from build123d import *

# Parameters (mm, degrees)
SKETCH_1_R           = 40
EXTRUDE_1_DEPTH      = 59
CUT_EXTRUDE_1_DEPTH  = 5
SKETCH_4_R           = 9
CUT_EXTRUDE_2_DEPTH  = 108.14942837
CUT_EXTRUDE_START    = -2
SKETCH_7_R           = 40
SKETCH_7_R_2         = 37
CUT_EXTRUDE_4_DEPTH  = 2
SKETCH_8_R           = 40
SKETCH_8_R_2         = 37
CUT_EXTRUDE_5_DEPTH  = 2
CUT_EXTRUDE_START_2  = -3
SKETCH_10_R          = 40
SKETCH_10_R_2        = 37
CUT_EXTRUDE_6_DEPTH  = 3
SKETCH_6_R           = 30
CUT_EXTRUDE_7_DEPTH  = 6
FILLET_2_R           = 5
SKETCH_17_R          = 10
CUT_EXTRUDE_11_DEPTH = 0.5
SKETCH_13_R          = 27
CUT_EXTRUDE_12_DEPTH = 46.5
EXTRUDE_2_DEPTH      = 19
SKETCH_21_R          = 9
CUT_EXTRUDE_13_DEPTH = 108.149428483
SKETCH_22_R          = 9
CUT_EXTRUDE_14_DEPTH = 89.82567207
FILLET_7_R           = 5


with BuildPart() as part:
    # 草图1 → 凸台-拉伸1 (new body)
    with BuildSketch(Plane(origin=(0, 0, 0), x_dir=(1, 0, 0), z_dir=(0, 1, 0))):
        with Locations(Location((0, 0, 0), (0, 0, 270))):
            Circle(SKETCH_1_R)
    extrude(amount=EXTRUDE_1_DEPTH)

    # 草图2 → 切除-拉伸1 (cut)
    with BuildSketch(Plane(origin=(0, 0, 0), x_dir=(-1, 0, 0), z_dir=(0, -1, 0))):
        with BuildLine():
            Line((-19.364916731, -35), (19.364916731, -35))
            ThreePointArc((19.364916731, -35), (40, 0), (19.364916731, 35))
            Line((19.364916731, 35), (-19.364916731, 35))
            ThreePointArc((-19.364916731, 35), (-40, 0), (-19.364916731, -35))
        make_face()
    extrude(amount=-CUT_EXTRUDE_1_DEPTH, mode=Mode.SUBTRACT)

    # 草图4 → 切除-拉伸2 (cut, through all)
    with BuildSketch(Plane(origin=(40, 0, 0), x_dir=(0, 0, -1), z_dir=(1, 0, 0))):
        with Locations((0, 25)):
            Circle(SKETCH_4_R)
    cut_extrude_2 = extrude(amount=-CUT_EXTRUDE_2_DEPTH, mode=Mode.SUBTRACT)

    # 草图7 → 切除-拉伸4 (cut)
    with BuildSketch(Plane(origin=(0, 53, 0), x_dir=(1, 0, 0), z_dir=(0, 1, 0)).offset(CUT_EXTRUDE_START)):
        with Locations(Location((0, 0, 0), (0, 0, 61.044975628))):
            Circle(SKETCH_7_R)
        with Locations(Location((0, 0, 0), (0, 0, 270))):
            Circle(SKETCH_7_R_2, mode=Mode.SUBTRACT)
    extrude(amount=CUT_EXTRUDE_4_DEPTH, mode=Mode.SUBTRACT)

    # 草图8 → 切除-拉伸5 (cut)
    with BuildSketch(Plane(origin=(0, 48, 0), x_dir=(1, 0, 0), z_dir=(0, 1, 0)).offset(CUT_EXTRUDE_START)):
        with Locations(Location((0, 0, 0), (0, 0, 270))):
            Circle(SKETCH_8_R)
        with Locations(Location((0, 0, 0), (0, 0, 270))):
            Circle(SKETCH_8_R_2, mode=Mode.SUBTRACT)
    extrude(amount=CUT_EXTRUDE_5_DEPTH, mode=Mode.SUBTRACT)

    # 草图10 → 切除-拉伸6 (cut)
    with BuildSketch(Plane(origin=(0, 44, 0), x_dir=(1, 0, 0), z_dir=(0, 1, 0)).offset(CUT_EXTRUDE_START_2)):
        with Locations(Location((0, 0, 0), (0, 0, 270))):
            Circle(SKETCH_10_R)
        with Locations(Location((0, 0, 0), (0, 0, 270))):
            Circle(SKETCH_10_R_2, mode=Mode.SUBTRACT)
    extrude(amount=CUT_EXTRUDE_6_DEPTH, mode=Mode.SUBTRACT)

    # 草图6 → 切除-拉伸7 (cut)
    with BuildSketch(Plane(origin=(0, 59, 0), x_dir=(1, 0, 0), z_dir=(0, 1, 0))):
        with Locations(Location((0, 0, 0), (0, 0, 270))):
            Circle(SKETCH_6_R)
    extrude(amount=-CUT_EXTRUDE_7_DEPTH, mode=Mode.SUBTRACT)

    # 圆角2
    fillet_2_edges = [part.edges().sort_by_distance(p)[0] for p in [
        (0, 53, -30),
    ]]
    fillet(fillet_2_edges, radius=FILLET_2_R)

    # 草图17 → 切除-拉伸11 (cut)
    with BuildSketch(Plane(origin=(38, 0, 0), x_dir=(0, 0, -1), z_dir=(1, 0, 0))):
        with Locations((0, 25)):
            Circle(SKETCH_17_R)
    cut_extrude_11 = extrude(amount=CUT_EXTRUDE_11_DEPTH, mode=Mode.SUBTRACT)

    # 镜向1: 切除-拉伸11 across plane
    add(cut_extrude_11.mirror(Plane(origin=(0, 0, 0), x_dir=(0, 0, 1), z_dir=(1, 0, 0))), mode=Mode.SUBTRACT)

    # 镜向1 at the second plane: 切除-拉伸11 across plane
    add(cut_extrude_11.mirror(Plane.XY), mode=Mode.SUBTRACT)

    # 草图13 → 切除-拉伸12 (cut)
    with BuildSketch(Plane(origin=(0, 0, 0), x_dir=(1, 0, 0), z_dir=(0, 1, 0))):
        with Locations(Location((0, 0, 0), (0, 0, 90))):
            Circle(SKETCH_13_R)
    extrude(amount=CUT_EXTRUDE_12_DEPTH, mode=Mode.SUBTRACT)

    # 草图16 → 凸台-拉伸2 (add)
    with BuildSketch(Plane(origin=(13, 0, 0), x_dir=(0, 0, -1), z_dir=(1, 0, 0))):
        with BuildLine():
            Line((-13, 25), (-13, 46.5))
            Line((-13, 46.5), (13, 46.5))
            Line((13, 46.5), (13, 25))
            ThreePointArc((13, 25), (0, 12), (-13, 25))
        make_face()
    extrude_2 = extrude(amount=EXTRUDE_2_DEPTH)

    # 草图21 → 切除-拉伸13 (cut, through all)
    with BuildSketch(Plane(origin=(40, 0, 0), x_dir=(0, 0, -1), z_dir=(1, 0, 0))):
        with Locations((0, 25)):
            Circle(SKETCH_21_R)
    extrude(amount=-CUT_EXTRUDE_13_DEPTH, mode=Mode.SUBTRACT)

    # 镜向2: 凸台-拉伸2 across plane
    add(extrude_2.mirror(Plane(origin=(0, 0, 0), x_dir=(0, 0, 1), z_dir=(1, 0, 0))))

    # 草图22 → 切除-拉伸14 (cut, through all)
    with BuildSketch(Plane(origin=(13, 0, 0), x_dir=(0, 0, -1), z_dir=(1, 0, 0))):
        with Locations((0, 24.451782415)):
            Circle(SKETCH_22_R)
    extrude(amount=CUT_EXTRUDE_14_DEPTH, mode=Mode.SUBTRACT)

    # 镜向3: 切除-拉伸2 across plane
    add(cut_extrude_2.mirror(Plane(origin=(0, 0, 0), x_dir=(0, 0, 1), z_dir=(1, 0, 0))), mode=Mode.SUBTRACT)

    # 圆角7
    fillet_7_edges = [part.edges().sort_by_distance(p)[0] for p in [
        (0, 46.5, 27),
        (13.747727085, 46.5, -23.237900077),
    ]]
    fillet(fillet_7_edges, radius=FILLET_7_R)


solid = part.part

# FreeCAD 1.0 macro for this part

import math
import FreeCAD as App
import Part
import Sketcher


def edges_at(feature, points):
    """Names of the edges that pass closest to the given points."""
    edges = feature.Shape.Edges
    near = lambda p: min(range(len(edges)), key=lambda i: edges[i].distToShape(Part.Vertex(*p))[0])
    return sorted({f"Edge{near(p) + 1}" for p in points})

doc = App.newDocument("Part")
body = doc.addObject("PartDesign::Body", "Body")

sketch1 = doc.addObject("Sketcher::SketchObject", "Sketch")
body.addObject(sketch1)
sketch1.AttachmentSupport = (doc.XZ_Plane, [""])
sketch1.MapMode = "FlatFace"
sketch1.addGeometry(Part.Circle(App.Vector(0, 0, 0), App.Vector(0, 0, 1), 40), False)
sketch1.addConstraint(Sketcher.Constraint("Coincident", 0, 3, -1, 1))
sketch1.addConstraint(Sketcher.Constraint("Diameter", 0, 80.0))
pad1 = doc.addObject("PartDesign::Pad", "Pad")
body.addObject(pad1)
pad1.Profile = sketch1
pad1.Length = 59
pad1.Reversed = True

sketch2 = doc.addObject("Sketcher::SketchObject", "Sketch001")
body.addObject(sketch2)
sketch2.AttachmentSupport = (doc.XZ_Plane, [""])
sketch2.MapMode = "FlatFace"
sketch2.addGeometry(Part.LineSegment(App.Vector(19, 35, 0), App.Vector(-19, 35, 0)), False)
sketch2.addGeometry(Part.ArcOfCircle(Part.Circle(App.Vector(0, 0, 0), App.Vector(0, 0, 1), 40), math.radians(119), math.radians(241)), False)
sketch2.addGeometry(Part.LineSegment(App.Vector(-19, -35, 0), App.Vector(19, -35, 0)), False)
sketch2.addGeometry(Part.ArcOfCircle(Part.Circle(App.Vector(0, 0, 0), App.Vector(0, 0, 1), 40), math.radians(-61), math.radians(61)), False)
sketch2.addConstraint(Sketcher.Constraint("Coincident", 0, 2, 1, 1))
sketch2.addConstraint(Sketcher.Constraint("Coincident", 1, 2, 2, 1))
sketch2.addConstraint(Sketcher.Constraint("Coincident", 2, 2, 3, 1))
sketch2.addConstraint(Sketcher.Constraint("Coincident", 3, 2, 0, 1))
sketch2.addConstraint(Sketcher.Constraint("Horizontal", 0))
sketch2.addConstraint(Sketcher.Constraint("Horizontal", 2))
sketch2.addConstraint(Sketcher.Constraint("Coincident", 1, 3, -1, 1))
sketch2.addConstraint(Sketcher.Constraint("Coincident", 3, 3, -1, 1))
sketch2.addConstraint(Sketcher.Constraint("Equal", 1, 3))
sketch2.addConstraint(Sketcher.Constraint("Vertical", 0, 2, 1, 2))
sketch2.addConstraint(Sketcher.Constraint("Radius", 1, 40.0))
sketch2.addConstraint(Sketcher.Constraint("DistanceY", -1, 1, 0, 2, 35.0))
pocket1 = doc.addObject("PartDesign::Pocket", "Pocket")
body.addObject(pocket1)
pocket1.Profile = sketch2
pocket1.Length = 5

sketch3 = doc.addObject("Sketcher::SketchObject", "Sketch002")
body.addObject(sketch3)
sketch3.AttachmentSupport = (doc.YZ_Plane, [""])
sketch3.MapMode = "FlatFace"
sketch3.AttachmentOffset = App.Placement(App.Vector(0, 0, 40), App.Rotation())
sketch3.addGeometry(Part.Circle(App.Vector(25, 0, 0), App.Vector(0, 0, 1), 9), False)
sketch3.addConstraint(Sketcher.Constraint("PointOnObject", 0, 3, -1))
sketch3.addConstraint(Sketcher.Constraint("Diameter", 0, 18.0))
sketch3.addConstraint(Sketcher.Constraint("DistanceX", -1, 1, 0, 3, 25.0))
pocket2 = doc.addObject("PartDesign::Pocket", "Pocket001")
body.addObject(pocket2)
pocket2.Profile = sketch3
pocket2.Type = "ThroughAll"

sketch4 = doc.addObject("Sketcher::SketchObject", "Sketch003")
body.addObject(sketch4)
sketch4.AttachmentSupport = (doc.XZ_Plane, [""])
sketch4.MapMode = "FlatFace"
sketch4.AttachmentOffset = App.Placement(App.Vector(0, 0, -51), App.Rotation())
sketch4.addGeometry(Part.Circle(App.Vector(0, 0, 0), App.Vector(0, 0, 1), 40), False)
sketch4.addGeometry(Part.Circle(App.Vector(0, 0, 0), App.Vector(0, 0, 1), 37), False)
sketch4.addConstraint(Sketcher.Constraint("Coincident", 0, 3, -1, 1))
sketch4.addConstraint(Sketcher.Constraint("Coincident", 1, 3, -1, 1))
sketch4.addConstraint(Sketcher.Constraint("Diameter", 0, 80.0))
sketch4.addConstraint(Sketcher.Constraint("Diameter", 1, 74.0))
pocket3 = doc.addObject("PartDesign::Pocket", "Pocket002")
body.addObject(pocket3)
pocket3.Profile = sketch4
pocket3.Length = 2

sketch5 = doc.addObject("Sketcher::SketchObject", "Sketch004")
body.addObject(sketch5)
sketch5.AttachmentSupport = (doc.XZ_Plane, [""])
sketch5.MapMode = "FlatFace"
sketch5.AttachmentOffset = App.Placement(App.Vector(0, 0, -46), App.Rotation())
sketch5.addGeometry(Part.Circle(App.Vector(0, 0, 0), App.Vector(0, 0, 1), 40), False)
sketch5.addGeometry(Part.Circle(App.Vector(0, 0, 0), App.Vector(0, 0, 1), 37), False)
sketch5.addConstraint(Sketcher.Constraint("Coincident", 0, 3, -1, 1))
sketch5.addConstraint(Sketcher.Constraint("Coincident", 1, 3, -1, 1))
sketch5.addConstraint(Sketcher.Constraint("Diameter", 0, 80.0))
sketch5.addConstraint(Sketcher.Constraint("Diameter", 1, 74.0))
pocket4 = doc.addObject("PartDesign::Pocket", "Pocket003")
body.addObject(pocket4)
pocket4.Profile = sketch5
pocket4.Length = 2

sketch6 = doc.addObject("Sketcher::SketchObject", "Sketch005")
body.addObject(sketch6)
sketch6.AttachmentSupport = (doc.XZ_Plane, [""])
sketch6.MapMode = "FlatFace"
sketch6.AttachmentOffset = App.Placement(App.Vector(0, 0, -41), App.Rotation())
sketch6.addGeometry(Part.Circle(App.Vector(0, 0, 0), App.Vector(0, 0, 1), 40), False)
sketch6.addGeometry(Part.Circle(App.Vector(0, 0, 0), App.Vector(0, 0, 1), 37), False)
sketch6.addConstraint(Sketcher.Constraint("Coincident", 0, 3, -1, 1))
sketch6.addConstraint(Sketcher.Constraint("Coincident", 1, 3, -1, 1))
sketch6.addConstraint(Sketcher.Constraint("Diameter", 0, 80.0))
sketch6.addConstraint(Sketcher.Constraint("Diameter", 1, 74.0))
pocket5 = doc.addObject("PartDesign::Pocket", "Pocket004")
body.addObject(pocket5)
pocket5.Profile = sketch6
pocket5.Length = 3

sketch7 = doc.addObject("Sketcher::SketchObject", "Sketch006")
body.addObject(sketch7)
sketch7.AttachmentSupport = (doc.XZ_Plane, [""])
sketch7.MapMode = "FlatFace"
sketch7.AttachmentOffset = App.Placement(App.Vector(0, 0, -59), App.Rotation())
sketch7.addGeometry(Part.Circle(App.Vector(0, 0, 0), App.Vector(0, 0, 1), 30), False)
sketch7.addConstraint(Sketcher.Constraint("Coincident", 0, 3, -1, 1))
sketch7.addConstraint(Sketcher.Constraint("Diameter", 0, 60.0))
pocket6 = doc.addObject("PartDesign::Pocket", "Pocket005")
body.addObject(pocket6)
pocket6.Profile = sketch7
pocket6.Length = 6
pocket6.Reversed = True
doc.recompute()

fillet = doc.addObject("PartDesign::Fillet", "Fillet")
body.addObject(fillet)
fillet.Base = (pocket6, edges_at(pocket6, [(0, 53, -30)]))
fillet.Radius = 5

sketch8 = doc.addObject("Sketcher::SketchObject", "Sketch007")
body.addObject(sketch8)
sketch8.AttachmentSupport = (doc.YZ_Plane, [""])
sketch8.MapMode = "FlatFace"
sketch8.AttachmentOffset = App.Placement(App.Vector(0, 0, 38), App.Rotation())
sketch8.addGeometry(Part.Circle(App.Vector(25, 0, 0), App.Vector(0, 0, 1), 10), False)
sketch8.addConstraint(Sketcher.Constraint("PointOnObject", 0, 3, -1))
sketch8.addConstraint(Sketcher.Constraint("Diameter", 0, 20.0))
sketch8.addConstraint(Sketcher.Constraint("DistanceX", -1, 1, 0, 3, 25.0))
pocket7 = doc.addObject("PartDesign::Pocket", "Pocket006")
body.addObject(pocket7)
pocket7.Profile = sketch8
pocket7.Length = 0.5
pocket7.Reversed = True
doc.recompute()

mirrored = doc.addObject("PartDesign::Mirrored", "Mirrored")
body.addObject(mirrored)
mirrored.Originals = [pocket7]
mirrored.MirrorPlane = (doc.YZ_Plane, [""])
body.Tip = mirrored
doc.recompute()

mirrored2 = doc.addObject("PartDesign::Mirrored", "Mirrored001")
body.addObject(mirrored2)
mirrored2.Originals = [pocket7]
mirrored2.MirrorPlane = (doc.XY_Plane, [""])
body.Tip = mirrored2

sketch9 = doc.addObject("Sketcher::SketchObject", "Sketch008")
body.addObject(sketch9)
sketch9.AttachmentSupport = (doc.XZ_Plane, [""])
sketch9.MapMode = "FlatFace"
sketch9.addGeometry(Part.Circle(App.Vector(0, 0, 0), App.Vector(0, 0, 1), 27), False)
sketch9.addConstraint(Sketcher.Constraint("Coincident", 0, 3, -1, 1))
sketch9.addConstraint(Sketcher.Constraint("Diameter", 0, 54.0))
pocket8 = doc.addObject("PartDesign::Pocket", "Pocket007")
body.addObject(pocket8)
pocket8.Profile = sketch9
pocket8.Length = 46.5

sketch10 = doc.addObject("Sketcher::SketchObject", "Sketch009")
body.addObject(sketch10)
sketch10.AttachmentSupport = (doc.YZ_Plane, [""])
sketch10.MapMode = "FlatFace"
sketch10.AttachmentOffset = App.Placement(App.Vector(0, 0, 13), App.Rotation())
sketch10.addGeometry(Part.LineSegment(App.Vector(46, 13, 0), App.Vector(25, 13, 0)), False)
sketch10.addGeometry(Part.ArcOfCircle(Part.Circle(App.Vector(25, 0, 0), App.Vector(0, 0, 1), 13), math.radians(90), math.radians(270)), False)
sketch10.addGeometry(Part.LineSegment(App.Vector(25, -13, 0), App.Vector(46, -13, 0)), False)
sketch10.addGeometry(Part.LineSegment(App.Vector(46, -13, 0), App.Vector(46, 13, 0)), False)
sketch10.addConstraint(Sketcher.Constraint("Tangent", 0, 2, 1, 1))
sketch10.addConstraint(Sketcher.Constraint("Tangent", 1, 2, 2, 1))
sketch10.addConstraint(Sketcher.Constraint("Coincident", 2, 2, 3, 1))
sketch10.addConstraint(Sketcher.Constraint("Coincident", 3, 2, 0, 1))
sketch10.addConstraint(Sketcher.Constraint("Horizontal", 0))
sketch10.addConstraint(Sketcher.Constraint("Horizontal", 2))
sketch10.addConstraint(Sketcher.Constraint("Vertical", 3))
sketch10.addConstraint(Sketcher.Constraint("PointOnObject", 1, 3, -1))
sketch10.addConstraint(Sketcher.Constraint("Radius", 1, 13.0))
sketch10.addConstraint(Sketcher.Constraint("DistanceX", 0, 2, 0, 1, 21.5))
sketch10.addConstraint(Sketcher.Constraint("DistanceX", -1, 1, 1, 3, 25.0))
pad2 = doc.addObject("PartDesign::Pad", "Pad001")
body.addObject(pad2)
pad2.Profile = sketch10
pad2.Length = 19

sketch11 = doc.addObject("Sketcher::SketchObject", "Sketch010")
body.addObject(sketch11)
sketch11.AttachmentSupport = (doc.YZ_Plane, [""])
sketch11.MapMode = "FlatFace"
sketch11.AttachmentOffset = App.Placement(App.Vector(0, 0, 40), App.Rotation())
sketch11.addGeometry(Part.Circle(App.Vector(25, 0, 0), App.Vector(0, 0, 1), 9), False)
sketch11.addConstraint(Sketcher.Constraint("PointOnObject", 0, 3, -1))
sketch11.addConstraint(Sketcher.Constraint("Diameter", 0, 18.0))
sketch11.addConstraint(Sketcher.Constraint("DistanceX", -1, 1, 0, 3, 25.0))
pocket9 = doc.addObject("PartDesign::Pocket", "Pocket008")
body.addObject(pocket9)
pocket9.Profile = sketch11
pocket9.Type = "ThroughAll"
doc.recompute()

mirrored3 = doc.addObject("PartDesign::Mirrored", "Mirrored002")
body.addObject(mirrored3)
mirrored3.Originals = [pad2]
mirrored3.MirrorPlane = (doc.YZ_Plane, [""])
body.Tip = mirrored3

sketch12 = doc.addObject("Sketcher::SketchObject", "Sketch011")
body.addObject(sketch12)
sketch12.AttachmentSupport = (doc.YZ_Plane, [""])
sketch12.MapMode = "FlatFace"
sketch12.AttachmentOffset = App.Placement(App.Vector(0, 0, 13), App.Rotation())
sketch12.addGeometry(Part.Circle(App.Vector(24, 0, 0), App.Vector(0, 0, 1), 9), False)
sketch12.addConstraint(Sketcher.Constraint("PointOnObject", 0, 3, -1))
sketch12.addConstraint(Sketcher.Constraint("Diameter", 0, 18.0))
sketch12.addConstraint(Sketcher.Constraint("DistanceX", -1, 1, 0, 3, 24.451782))
pocket10 = doc.addObject("PartDesign::Pocket", "Pocket009")
body.addObject(pocket10)
pocket10.Profile = sketch12
pocket10.Type = "ThroughAll"
pocket10.Reversed = True
doc.recompute()

mirrored4 = doc.addObject("PartDesign::Mirrored", "Mirrored003")
body.addObject(mirrored4)
mirrored4.Originals = [pocket2]
mirrored4.MirrorPlane = (doc.YZ_Plane, [""])
body.Tip = mirrored4
doc.recompute()

fillet2 = doc.addObject("PartDesign::Fillet", "Fillet001")
body.addObject(fillet2)
fillet2.Base = (mirrored4, edges_at(mirrored4, [(0, 46.5, 27), (13.748, 46.5, -23.238)]))
fillet2.Radius = 5

doc.recompute()
